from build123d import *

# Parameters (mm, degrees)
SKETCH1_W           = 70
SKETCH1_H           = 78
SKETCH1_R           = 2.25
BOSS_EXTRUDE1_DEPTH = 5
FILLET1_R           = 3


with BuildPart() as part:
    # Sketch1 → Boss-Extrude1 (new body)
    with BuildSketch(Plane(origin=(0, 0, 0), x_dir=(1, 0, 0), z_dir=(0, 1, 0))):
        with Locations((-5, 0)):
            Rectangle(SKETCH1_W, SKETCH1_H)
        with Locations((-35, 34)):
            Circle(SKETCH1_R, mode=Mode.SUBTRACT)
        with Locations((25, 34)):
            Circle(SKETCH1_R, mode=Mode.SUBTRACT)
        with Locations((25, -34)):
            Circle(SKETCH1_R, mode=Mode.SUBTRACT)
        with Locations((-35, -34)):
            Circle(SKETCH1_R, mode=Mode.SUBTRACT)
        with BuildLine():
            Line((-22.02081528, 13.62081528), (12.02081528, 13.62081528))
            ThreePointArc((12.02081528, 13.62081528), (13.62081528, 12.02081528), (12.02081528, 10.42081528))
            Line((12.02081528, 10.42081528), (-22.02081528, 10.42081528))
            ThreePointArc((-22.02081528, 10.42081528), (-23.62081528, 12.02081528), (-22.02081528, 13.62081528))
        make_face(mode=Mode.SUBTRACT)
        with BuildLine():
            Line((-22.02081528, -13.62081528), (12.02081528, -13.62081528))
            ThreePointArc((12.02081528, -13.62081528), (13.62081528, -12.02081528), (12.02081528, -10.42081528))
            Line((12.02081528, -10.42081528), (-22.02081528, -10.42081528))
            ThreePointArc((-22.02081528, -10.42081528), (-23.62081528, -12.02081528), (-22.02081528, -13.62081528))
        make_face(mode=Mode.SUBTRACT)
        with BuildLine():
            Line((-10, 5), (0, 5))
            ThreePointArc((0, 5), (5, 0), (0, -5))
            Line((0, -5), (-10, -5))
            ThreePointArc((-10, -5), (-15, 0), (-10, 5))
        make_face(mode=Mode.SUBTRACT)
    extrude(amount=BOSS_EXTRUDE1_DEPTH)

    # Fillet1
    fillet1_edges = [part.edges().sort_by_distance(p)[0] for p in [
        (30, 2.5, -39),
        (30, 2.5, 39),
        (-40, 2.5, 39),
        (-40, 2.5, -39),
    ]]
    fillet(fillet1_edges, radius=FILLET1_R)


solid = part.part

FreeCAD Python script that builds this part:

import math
import FreeCAD as App
import Part
import Sketcher
from FreeCAD import Vector


def edges_at(feature, points):
    """Names of the edges that pass closest to the given points."""
    edges = feature.Shape.Edges
    near = lambda p: min(range(len(edges)), key=lambda i: edges[i].distToShape(Part.Vertex(*p))[0])
    return sorted({f"Edge{near(p) + 1}" for p in points})

doc = App.newDocument("Part")
body = doc.addObject("PartDesign::Body", "Body")

# Sketch on XZ plane
sketch1 = body.newObject("Sketcher::SketchObject", "Sketch")
sketch1.AttachmentSupport = (doc.getObject("XZ_Plane"), [""])
sketch1.MapMode = "FlatFace"
sketch1.addGeometry(Part.LineSegment(Vector(-40, -39, 0), Vector(-40, 39, 0)), False)
sketch1.addGeometry(Part.LineSegment(Vector(-40, 39, 0), Vector(30, 39, 0)), False)
sketch1.addGeometry(Part.LineSegment(Vector(30, 39, 0), Vector(30, -39, 0)), False)
sketch1.addGeometry(Part.LineSegment(Vector(30, -39, 0), Vector(-40, -39, 0)), False)
sketch1.addGeometry(Part.Circle(Vector(-35, 34, 0), Vector(0, 0, 1), 2.25), False)
sketch1.addGeometry(Part.Circle(Vector(25, 34, 0), Vector(0, 0, 1), 2.25), False)
sketch1.addGeometry(Part.LineSegment(Vector(12.020815, 13.620815, 0), Vector(-22.020815, 13.620815, 0)), False)
sketch1.addGeometry(Part.ArcOfCircle(Part.Circle(Vector(-22.020815, 12.020815, 0), Vector(0, 0, 1), 1.6), math.radians(90), math.radians(270)), False)
sketch1.addGeometry(Part.LineSegment(Vector(-22.020815, 10.420815, 0), Vector(12.020815, 10.420815, 0)), False)
sketch1.addGeometry(Part.ArcOfCircle(Part.Circle(Vector(12.020815, 12.020815, 0), Vector(0, 0, 1), 1.6), math.radians(-90), math.radians(90)), False)
sketch1.addGeometry(Part.Circle(Vector(-35, -34, 0), Vector(0, 0, 1), 2.25), False)
sketch1.addGeometry(Part.ArcOfCircle(Part.Circle(Vector(-10, 0, 0), Vector(0, 0, 1), 5), math.radians(90), math.radians(270)), False)
sketch1.addGeometry(Part.LineSegment(Vector(-10, -5, 0), Vector(0, -5, 0)), False)
sketch1.addGeometry(Part.ArcOfCircle(Part.Circle(Vector(0, 0, 0), Vector(0, 0, 1), 5), math.radians(-90), math.radians(90)), False)
sketch1.addGeometry(Part.LineSegment(Vector(0, 5, 0), Vector(-10, 5, 0)), False)
sketch1.addGeometry(Part.ArcOfCircle(Part.Circle(Vector(-22.020815, -12.020815, 0), Vector(0, 0, 1), 1.6), math.radians(90), math.radians(270)), False)
sketch1.addGeometry(Part.LineSegment(Vector(-22.020815, -13.620815, 0), Vector(12.020815, -13.620815, 0)), False)
sketch1.addGeometry(Part.ArcOfCircle(Part.Circle(Vector(12.020815, -12.020815, 0), Vector(0, 0, 1), 1.6), math.radians(-90), math.radians(90)), False)
sketch1.addGeometry(Part.LineSegment(Vector(12.020815, -10.420815, 0), Vector(-22.020815, -10.420815, 0)), False)
sketch1.addGeometry(Part.Circle(Vector(25, -34, 0), Vector(0, 0, 1), 2.25), False)
sketch1.addConstraint(Sketcher.Constraint("Coincident", 0, 2, 1, 1))
sketch1.addConstraint(Sketcher.Constraint("Coincident", 1, 2, 2, 1))
sketch1.addConstraint(Sketcher.Constraint("Coincident", 2, 2, 3, 1))
sketch1.addConstraint(Sketcher.Constraint("Coincident", 3, 2, 0, 1))
sketch1.addConstraint(Sketcher.Constraint("Tangent", 6, 2, 7, 1))
sketch1.addConstraint(Sketcher.Constraint("Tangent", 7, 2, 8, 1))
sketch1.addConstraint(Sketcher.Constraint("Tangent", 8, 2, 9, 1))
sketch1.addConstraint(Sketcher.Constraint("Tangent", 9, 2, 6, 1))
sketch1.addConstraint(Sketcher.Constraint("Tangent", 11, 2, 12, 1))
sketch1.addConstraint(Sketcher.Constraint("Tangent", 12, 2, 13, 1))
sketch1.addConstraint(Sketcher.Constraint("Tangent", 13, 2, 14, 1))
sketch1.addConstraint(Sketcher.Constraint("Tangent", 14, 2, 11, 1))
sketch1.addConstraint(Sketcher.Constraint("Tangent", 15, 2, 16, 1))
sketch1.addConstraint(Sketcher.Constraint("Tangent", 16, 2, 17, 1))
sketch1.addConstraint(Sketcher.Constraint("Tangent", 17, 2, 18, 1))
sketch1.addConstraint(Sketcher.Constraint("Tangent", 18, 2, 15, 1))
sketch1.addConstraint(Sketcher.Constraint("Vertical", 0))
sketch1.addConstraint(Sketcher.Constraint("Horizontal", 1))
sketch1.addConstraint(Sketcher.Constraint("Vertical", 2))
sketch1.addConstraint(Sketcher.Constraint("Horizontal", 3))
sketch1.addConstraint(Sketcher.Constraint("Horizontal", 6))
sketch1.addConstraint(Sketcher.Constraint("Horizontal", 8))
sketch1.addConstraint(Sketcher.Constraint("Horizontal", 12))
sketch1.addConstraint(Sketcher.Constraint("Horizontal", 14))
sketch1.addConstraint(Sketcher.Constraint("Horizontal", 16))
sketch1.addConstraint(Sketcher.Constraint("Horizontal", 18))
sketch1.addConstraint(Sketcher.Constraint("Coincident", 13, 3, -1, 1))
sketch1.addConstraint(Sketcher.Constraint("Equal", 4, 5))
sketch1.addConstraint(Sketcher.Constraint("Equal", 5, 10))
sketch1.addConstraint(Sketcher.Constraint("Equal", 9, 15))
sketch1.addConstraint(Sketcher.Constraint("Equal", 10, 19))
sketch1.addConstraint(Sketcher.Constraint("Symmetric", 4, 3, 10, 3, -1))
sketch1.addConstraint(Sketcher.Constraint("Symmetric", 7, 3, 15, 3, -1))
sketch1.addConstraint(Sketcher.Constraint("Symmetric", 5, 3, 19, 3, -1))
sketch1.addConstraint(Sketcher.Constraint("Horizontal", 4, 3, 5, 3))
sketch1.addConstraint(Sketcher.Constraint("Vertical", 9, 3, 17, 3))
sketch1.addConstraint(Sketcher.Constraint("Radius", 11, 5.0))
sketch1.addConstraint(Sketcher.Constraint("Diameter", 4, 4.5))
sketch1.addConstraint(Sketcher.Constraint("Radius", 7, 1.6))
sketch1.addConstraint(Sketcher.Constraint("DistanceX", 1, 1, 1, 2, 70.0))
sketch1.addConstraint(Sketcher.Constraint("DistanceX", 12, 1, 12, 2, 10.0))
sketch1.addConstraint(Sketcher.Constraint("DistanceY", 0, 1, 0, 2, 78.0))
sketch1.addConstraint(Sketcher.Constraint("DistanceX", 4, 3, -1, 1, 35.0))
sketch1.addConstraint(Sketcher.Constraint("DistanceY", -1, 1, 4, 3, 34.0))
sketch1.addConstraint(Sketcher.Constraint("DistanceX", -1, 1, 5, 3, 25.0))
sketch1.addConstraint(Sketcher.Constraint("DistanceX", 0, 2, -1, 1, 40.0))
sketch1.addConstraint(Sketcher.Constraint("DistanceY", -1, 1, 0, 2, 39.0))
sketch1.addConstraint(Sketcher.Constraint("DistanceX", 6, 2, 6, 1, 34.041631))
sketch1.addConstraint(Sketcher.Constraint("DistanceY", 15, 3, 7, 3, 24.041631))
sketch1.addConstraint(Sketcher.Constraint("DistanceX", 7, 3, -1, 1, 22.020815))
pad1 = body.newObject("PartDesign::Pad", "Pad")
pad1.Profile = sketch1
pad1.Length = 5
pad1.Reversed = True
doc.recompute()

fillet = body.newObject("PartDesign::Fillet", "Fillet")
fillet.Base = (pad1, edges_at(pad1, [
    (30, 2.5, -39),
    (30, 2.5, 39),
    (-40, 2.5, 39),
    (-40, 2.5, -39),
]))
fillet.Radius = 3

doc.recompute()
